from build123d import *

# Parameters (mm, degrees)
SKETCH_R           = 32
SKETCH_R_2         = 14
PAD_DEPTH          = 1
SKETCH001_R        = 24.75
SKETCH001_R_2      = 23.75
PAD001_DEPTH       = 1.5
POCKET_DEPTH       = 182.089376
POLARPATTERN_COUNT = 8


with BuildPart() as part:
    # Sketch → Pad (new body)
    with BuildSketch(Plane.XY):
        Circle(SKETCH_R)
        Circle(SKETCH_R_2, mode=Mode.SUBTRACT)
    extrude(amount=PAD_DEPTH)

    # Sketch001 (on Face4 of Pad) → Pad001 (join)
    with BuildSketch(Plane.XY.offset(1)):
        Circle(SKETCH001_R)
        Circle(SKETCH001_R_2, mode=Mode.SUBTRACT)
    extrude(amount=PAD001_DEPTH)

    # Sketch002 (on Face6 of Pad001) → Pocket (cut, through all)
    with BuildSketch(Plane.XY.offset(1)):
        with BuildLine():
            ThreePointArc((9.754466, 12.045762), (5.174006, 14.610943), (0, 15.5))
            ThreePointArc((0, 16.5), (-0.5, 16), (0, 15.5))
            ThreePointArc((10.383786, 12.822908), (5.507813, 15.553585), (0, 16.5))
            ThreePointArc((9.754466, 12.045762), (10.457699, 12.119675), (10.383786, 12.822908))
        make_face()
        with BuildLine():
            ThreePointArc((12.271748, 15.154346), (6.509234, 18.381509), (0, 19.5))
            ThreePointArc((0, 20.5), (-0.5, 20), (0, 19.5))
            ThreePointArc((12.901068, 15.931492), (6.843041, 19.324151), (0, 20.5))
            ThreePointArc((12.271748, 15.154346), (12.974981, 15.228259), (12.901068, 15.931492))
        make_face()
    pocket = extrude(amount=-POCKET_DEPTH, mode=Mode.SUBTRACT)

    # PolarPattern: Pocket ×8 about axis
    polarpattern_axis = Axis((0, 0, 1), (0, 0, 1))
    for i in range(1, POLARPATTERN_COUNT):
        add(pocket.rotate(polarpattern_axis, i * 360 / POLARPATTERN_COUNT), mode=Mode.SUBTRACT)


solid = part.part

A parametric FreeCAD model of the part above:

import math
import FreeCAD as App
import Part
import Sketcher
from FreeCAD import Vector

doc = App.newDocument("Part")
params = doc.addObject("Spreadsheet::Sheet", "Params")
for row, (alias, value) in enumerate([
    ("sketch1_diameter", "64 mm"),
    ("sketch1_diameter2", "28 mm"),
    ("pad1_length", "1 mm"),
    ("sketch2_diameter", "49.5 mm"),
    ("sketch2_diameter2", "47.5 mm"),
    ("pad2_length", "1.5 mm"),
    ("sketch3_radius", "15.5 mm"),
    ("sketch3_radius2", "0.5 mm"),
    ("sketch3_radius3", "19.5 mm"),
], start=1):
    params.set(f"A{row}", alias)
    params.set(f"B{row}", "=" + value)
    params.setAlias(f"B{row}", alias)

body = doc.addObject("PartDesign::Body", "Body")

sketch1 = doc.addObject("Sketcher::SketchObject", "Sketch")
body.addObject(sketch1)
sketch1.AttachmentSupport = (doc.XY_Plane, [""])
sketch1.MapMode = "FlatFace"
sketch1.addGeometry([
    Part.Circle(Vector(0, 0, 0), Vector(0, 0, 1), 32),
    Part.Circle(Vector(0, 0, 0), Vector(0, 0, 1), 14),
], False)
sketch1.addConstraint([
    Sketcher.Constraint("Coincident", 0, 3, -1, 1),
    Sketcher.Constraint("Coincident", 1, 3, -1, 1),
    Sketcher.Constraint("Diameter", 0, 64.0),
    Sketcher.Constraint("Diameter", 1, 28.0),
])
sketch1.setExpression("Constraints[2]", "Params.sketch1_diameter")
sketch1.setExpression("Constraints[3]", "Params.sketch1_diameter2")
pad1 = doc.addObject("PartDesign::Pad", "Pad")
body.addObject(pad1)
pad1.Profile = sketch1
pad1.setExpression("Length", "Params.pad1_length")

sketch2 = doc.addObject("Sketcher::SketchObject", "Sketch001")
body.addObject(sketch2)
sketch2.AttachmentSupport = (doc.XY_Plane, [""])
sketch2.MapMode = "FlatFace"
sketch2.AttachmentOffset = App.Placement(Vector(0, 0, 1), App.Rotation())
sketch2.addGeometry([
    Part.Circle(Vector(0, 0, 0), Vector(0, 0, 1), 25),
    Part.Circle(Vector(0, 0, 0), Vector(0, 0, 1), 24),
], False)
sketch2.addConstraint([
    Sketcher.Constraint("Coincident", 0, 3, -1, 1),
    Sketcher.Constraint("Coincident", 1, 3, -1, 1),
    Sketcher.Constraint("Diameter", 0, 49.5),
    Sketcher.Constraint("Diameter", 1, 47.5),
])
sketch2.setExpression("Constraints[2]", "Params.sketch2_diameter")
sketch2.setExpression("Constraints[3]", "Params.sketch2_diameter2")
pad2 = doc.addObject("PartDesign::Pad", "Pad001")
body.addObject(pad2)
pad2.Profile = sketch2
pad2.setExpression("Length", "Params.pad2_length")

sketch3 = doc.addObject("Sketcher::SketchObject", "Sketch002")
body.addObject(sketch3)
sketch3.AttachmentSupport = (doc.XY_Plane, [""])
sketch3.MapMode = "FlatFace"
sketch3.AttachmentOffset = App.Placement(Vector(0, 0, 1), App.Rotation())
sketch3.addGeometry([
    Part.ArcOfCircle(Part.Circle(Vector(0, 0, 0), Vector(0, 0, 1), 15.5), math.radians(51), math.radians(90)),
    Part.ArcOfCircle(Part.Circle(Vector(10.07, 12.43, 0), Vector(0, 0, 1), 0.5), math.radians(-129), math.radians(51)),
    Part.ArcOfCircle(Part.Circle(Vector(0, 0, 0), Vector(0, 0, 1), 16.5), math.radians(51), math.radians(90)),
    Part.ArcOfCircle(Part.Circle(Vector(0, 16, 0), Vector(0, 0, 1), 0.5), math.radians(90), math.radians(270)),
    Part.ArcOfCircle(Part.Circle(Vector(0, 0, 0), Vector(0, 0, 1), 19.5), math.radians(51), math.radians(90)),
    Part.ArcOfCircle(Part.Circle(Vector(12.59, 15.54, 0), Vector(0, 0, 1), 0.5), math.radians(-129), math.radians(51)),
    Part.ArcOfCircle(Part.Circle(Vector(0, 0, 0), Vector(0, 0, 1), 20.5), math.radians(51), math.radians(90)),
    Part.ArcOfCircle(Part.Circle(Vector(0, 20, 0), Vector(0, 0, 1), 0.5), math.radians(90), math.radians(270)),
], False)
sketch3.addConstraint([
    Sketcher.Constraint("Tangent", 0, 1, 1, 1),
    Sketcher.Constraint("Tangent", 1, 2, 2, 1),
    Sketcher.Constraint("Tangent", 2, 2, 3, 1),
    Sketcher.Constraint("Tangent", 3, 2, 0, 2),
    Sketcher.Constraint("Tangent", 4, 1, 5, 1),
    Sketcher.Constraint("Tangent", 5, 2, 6, 1),
    Sketcher.Constraint("Tangent", 6, 2, 7, 1),
    Sketcher.Constraint("Tangent", 7, 2, 4, 2),
    Sketcher.Constraint("Coincident", 0, 3, -1, 1),
    Sketcher.Constraint("Coincident", 4, 3, -1, 1),
    Sketcher.Constraint("Coincident", 6, 3, 2, 3),
    Sketcher.Constraint("Equal", 1, 3),
    Sketcher.Constraint("Equal", 3, 5),
    Sketcher.Constraint("PointOnObject", 3, 3, -2),
    Sketcher.Constraint("PointOnObject", 7, 3, -2),
    Sketcher.Constraint("Radius", 0, 15.5),
    Sketcher.Constraint("Radius", 1, 0.5),
    Sketcher.Constraint("Radius", 4, 19.5),
    Sketcher.Constraint("Radius", 2, 16.49999),
    Sketcher.Constraint("DistanceY", -1, 1, 5, 3, 15.542919),
    Sketcher.Constraint("DistanceY", -1, 1, 0, 1, 12.045762),
])
sketch3.setExpression("Constraints[15]", "Params.sketch3_radius")
sketch3.setExpression("Constraints[16]", "Params.sketch3_radius2")
sketch3.setExpression("Constraints[17]", "Params.sketch3_radius3")
pocket1 = doc.addObject("PartDesign::Pocket", "Pocket")
body.addObject(pocket1)
pocket1.Profile = sketch3
pocket1.Type = "ThroughAll"
doc.recompute()

polarpattern = doc.addObject("PartDesign::PolarPattern", "PolarPattern")
body.addObject(polarpattern)
polarpattern.Originals = [pocket1]
polarpattern.Axis = (doc.Z_Axis, [""])
polarpattern.Angle = 360
polarpattern.Occurrences = 8
body.Tip = polarpattern

doc.recompute()
